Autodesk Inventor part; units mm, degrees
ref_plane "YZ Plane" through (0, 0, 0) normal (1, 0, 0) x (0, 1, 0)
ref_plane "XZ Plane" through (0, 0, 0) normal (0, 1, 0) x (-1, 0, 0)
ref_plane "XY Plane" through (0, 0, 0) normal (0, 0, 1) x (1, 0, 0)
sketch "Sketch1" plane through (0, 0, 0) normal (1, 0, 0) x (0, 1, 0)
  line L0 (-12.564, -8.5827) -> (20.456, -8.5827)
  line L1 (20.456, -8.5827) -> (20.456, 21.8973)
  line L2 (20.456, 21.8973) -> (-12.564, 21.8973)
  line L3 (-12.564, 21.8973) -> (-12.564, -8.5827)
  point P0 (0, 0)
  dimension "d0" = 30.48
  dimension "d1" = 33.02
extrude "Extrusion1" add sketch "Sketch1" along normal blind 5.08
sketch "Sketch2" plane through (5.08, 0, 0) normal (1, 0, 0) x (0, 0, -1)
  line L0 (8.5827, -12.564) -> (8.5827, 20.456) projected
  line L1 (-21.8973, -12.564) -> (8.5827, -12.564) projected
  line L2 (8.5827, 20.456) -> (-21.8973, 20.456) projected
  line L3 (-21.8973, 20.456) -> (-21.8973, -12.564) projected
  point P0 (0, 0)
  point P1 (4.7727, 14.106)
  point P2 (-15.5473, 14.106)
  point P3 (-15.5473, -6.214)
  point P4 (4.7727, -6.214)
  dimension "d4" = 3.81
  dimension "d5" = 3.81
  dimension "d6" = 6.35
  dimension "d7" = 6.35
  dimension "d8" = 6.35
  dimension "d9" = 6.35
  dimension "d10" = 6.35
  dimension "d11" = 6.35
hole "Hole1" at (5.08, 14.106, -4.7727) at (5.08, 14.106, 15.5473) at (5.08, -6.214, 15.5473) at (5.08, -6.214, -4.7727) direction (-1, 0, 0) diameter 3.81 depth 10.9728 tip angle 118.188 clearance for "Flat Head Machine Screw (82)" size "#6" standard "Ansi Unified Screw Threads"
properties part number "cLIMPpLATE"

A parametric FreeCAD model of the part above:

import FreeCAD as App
import Part
import Sketcher
Q = App.Units.Quantity

doc = App.newDocument("Part")
params = doc.addObject("Spreadsheet::Sheet", "Params")
for row, (alias, value) in enumerate([
    ("sketch1_width", "1.3 in"),
    ("sketch1_height", "1.2 in"),
    ("pad1_length", "0.2 in"),
    ("sketch2_diameter", "0.15 in"),
    ("hole_diameter", "0.15 in"),
    ("hole_depth", "0.432 in"),
], start=1):
    params.set(f"A{row}", alias)
    params.set(f"B{row}", "=" + value)
    params.setAlias(f"B{row}", alias)

body = doc.addObject("PartDesign::Body", "Body")

# Sketch on YZ plane
sketch1 = body.newObject("Sketcher::SketchObject", "Sketch")
sketch1.AttachmentSupport = (doc.getObject("YZ_Plane"), [""])
sketch1.MapMode = "FlatFace"
sketch1.addGeometry([
    Part.LineSegment(App.Vector(-12.564, 21.8973, 0), App.Vector(-12.564, -8.5827, 0)),
    Part.LineSegment(App.Vector(-12.564, -8.5827, 0), App.Vector(20.456, -8.5827, 0)),
    Part.LineSegment(App.Vector(20.456, -8.5827, 0), App.Vector(20.456, 21.8973, 0)),
    Part.LineSegment(App.Vector(20.456, 21.8973, 0), App.Vector(-12.564, 21.8973, 0)),
], False)
sketch1.addConstraint([
    Sketcher.Constraint("Coincident", 0, 2, 1, 1),
    Sketcher.Constraint("Coincident", 1, 2, 2, 1),
    Sketcher.Constraint("Coincident", 2, 2, 3, 1),
    Sketcher.Constraint("Coincident", 3, 2, 0, 1),
    Sketcher.Constraint("Vertical", 0),
    Sketcher.Constraint("Horizontal", 1),
    Sketcher.Constraint("Vertical", 2),
    Sketcher.Constraint("Horizontal", 3),
    Sketcher.Constraint("DistanceX", 1, 1, 1, 2, Q("1.3 in")),
    Sketcher.Constraint("DistanceY", 0, 2, 0, 1, Q("1.2 in")),
    Sketcher.Constraint("DistanceY", 0, 2, -1, 1, Q("0.3379 in")),
    Sketcher.Constraint("DistanceX", 0, 2, -1, 1, Q("12.564 mm")),
])
sketch1.setExpression("Constraints[8]", "Params.sketch1_width")
sketch1.setExpression("Constraints[9]", "Params.sketch1_height")
pad1 = body.newObject("PartDesign::Pad", "Pad")
pad1.Profile = sketch1
pad1.setExpression("Length", "Params.pad1_length")

# Sketch on YZ plane
sketch2 = body.newObject("Sketcher::SketchObject", "Sketch001")
sketch2.AttachmentSupport = (doc.getObject("YZ_Plane"), [""])
sketch2.MapMode = "FlatFace"
sketch2.AttachmentOffset = App.Placement(App.Vector(0, 0, 0.2 * 25.4), App.Rotation())
sketch2.addGeometry([
    Part.Circle(App.Vector(14.106, -4.7727, 0), App.Vector(0, 0, 1), 1.905),
    Part.Circle(App.Vector(14.106, 15.5473, 0), App.Vector(0, 0, 1), 1.905),
    Part.Circle(App.Vector(-6.214, 15.5473, 0), App.Vector(0, 0, 1), 1.905),
    Part.Circle(App.Vector(-6.214, -4.7727, 0), App.Vector(0, 0, 1), 1.905),
], False)
sketch2.addConstraint([
    Sketcher.Constraint("Equal", 0, 1),
    Sketcher.Constraint("Equal", 1, 2),
    Sketcher.Constraint("Equal", 2, 3),
    Sketcher.Constraint("Horizontal", 1, 3, 2, 3),
    Sketcher.Constraint("Horizontal", 0, 3, 3, 3),
    Sketcher.Constraint("Vertical", 0, 3, 1, 3),
    Sketcher.Constraint("Vertical", 2, 3, 3, 3),
    Sketcher.Constraint("Diameter", 0, Q("0.15 in")),
    Sketcher.Constraint("DistanceY", 0, 3, 1, 3, Q("0.8 in")),
    Sketcher.Constraint("DistanceX", 2, 3, 1, 3, Q("0.8 in")),
    Sketcher.Constraint("DistanceY", 0, 3, -1, 1, Q("0.1879 in")),
    Sketcher.Constraint("DistanceX", -1, 1, 0, 3, Q("14.106 mm")),
])
sketch2.setExpression("Constraints[7]", "Params.sketch2_diameter")
doc.recompute()
hole = body.newObject("PartDesign::Hole", "Hole")
hole.Profile = sketch2
hole.ThreadType = "None"
hole.setExpression("Diameter", "Params.hole_diameter")
hole.DepthType = "Dimension"
hole.setExpression("Depth", "Params.hole_depth")
hole.DrillPoint = "Angled"
hole.DrillPointAngle = 118.188

doc.recompute()
